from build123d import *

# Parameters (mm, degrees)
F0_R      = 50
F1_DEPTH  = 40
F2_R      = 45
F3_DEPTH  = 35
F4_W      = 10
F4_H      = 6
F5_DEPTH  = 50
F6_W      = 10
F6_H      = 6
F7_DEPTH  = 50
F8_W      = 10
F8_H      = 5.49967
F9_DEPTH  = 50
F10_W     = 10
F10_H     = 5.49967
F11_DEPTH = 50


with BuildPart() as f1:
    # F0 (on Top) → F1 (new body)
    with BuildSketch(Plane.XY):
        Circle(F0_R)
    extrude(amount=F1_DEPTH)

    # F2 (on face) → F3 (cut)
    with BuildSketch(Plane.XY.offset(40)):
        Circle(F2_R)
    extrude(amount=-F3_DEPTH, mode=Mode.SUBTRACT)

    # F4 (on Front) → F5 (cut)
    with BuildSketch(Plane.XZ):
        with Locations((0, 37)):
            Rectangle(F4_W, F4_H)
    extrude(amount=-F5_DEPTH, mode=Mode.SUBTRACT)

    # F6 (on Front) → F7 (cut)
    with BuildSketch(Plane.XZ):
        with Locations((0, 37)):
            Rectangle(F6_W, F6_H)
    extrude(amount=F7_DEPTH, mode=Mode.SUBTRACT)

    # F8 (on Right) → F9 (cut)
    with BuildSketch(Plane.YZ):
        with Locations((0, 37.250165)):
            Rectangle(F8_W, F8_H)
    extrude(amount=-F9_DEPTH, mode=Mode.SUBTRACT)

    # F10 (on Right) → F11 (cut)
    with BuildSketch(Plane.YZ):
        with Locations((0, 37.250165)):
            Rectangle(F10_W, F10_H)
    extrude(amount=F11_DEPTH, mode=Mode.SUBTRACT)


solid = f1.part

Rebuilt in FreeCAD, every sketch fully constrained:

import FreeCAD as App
import Part
import Sketcher
from FreeCAD import Vector


def add_polygon(sketch, points):
    """Adds a closed chain of lines whose ends are joined by coincident constraints."""
    first, n = sketch.GeometryCount, len(points)
    for a, b in zip(points, points[1:] + points[:1]):
        sketch.addGeometry(Part.LineSegment(App.Vector(*a, 0), App.Vector(*b, 0)), False)
    for i in range(n):
        sketch.addConstraint(Sketcher.Constraint("Coincident", first + i, 2, first + (i + 1) % n, 1))

doc = App.newDocument("Part")
body = doc.addObject("PartDesign::Body", "Body")

# Sketch on XY plane
sketch1 = doc.addObject("Sketcher::SketchObject", "Sketch")
body.addObject(sketch1)
sketch1.AttachmentSupport = (doc.XY_Plane, [""])
sketch1.MapMode = "FlatFace"
sketch1.addGeometry(Part.Circle(Vector(0, 0, 0), Vector(0, 0, 1), 50), False)
sketch1.addConstraint([
    Sketcher.Constraint("Coincident", 0, 3, -1, 1),
    Sketcher.Constraint("Diameter", 0, 100.0),
])
pad1 = doc.addObject("PartDesign::Pad", "Pad")
body.addObject(pad1)
pad1.Profile = sketch1
pad1.Length = 40

# Sketch on XY plane
sketch2 = doc.addObject("Sketcher::SketchObject", "Sketch001")
body.addObject(sketch2)
sketch2.AttachmentSupport = (doc.XY_Plane, [""])
sketch2.MapMode = "FlatFace"
sketch2.AttachmentOffset = App.Placement(Vector(0, 0, 40), App.Rotation())
sketch2.addGeometry(Part.Circle(Vector(0, 0, 0), Vector(0, 0, 1), 45), False)
sketch2.addConstraint([
    Sketcher.Constraint("Coincident", 0, 3, -1, 1),
    Sketcher.Constraint("Diameter", 0, 90.0),
])
pocket1 = doc.addObject("PartDesign::Pocket", "Pocket")
body.addObject(pocket1)
pocket1.Profile = sketch2
pocket1.Length = 35

# Sketch on XZ plane
sketch3 = doc.addObject("Sketcher::SketchObject", "Sketch002")
body.addObject(sketch3)
sketch3.AttachmentSupport = (doc.XZ_Plane, [""])
sketch3.MapMode = "FlatFace"
add_polygon(sketch3, [(-5, 40), (-5, 34), (5, 34), (5, 40)])  # lines 0-3
sketch3.addConstraint([
    Sketcher.Constraint("Vertical", 0),
    Sketcher.Constraint("Horizontal", 1),
    Sketcher.Constraint("Vertical", 2),
    Sketcher.Constraint("Horizontal", 3),
    Sketcher.Constraint("DistanceX", 1, 1, 1, 2, 10.0),
    Sketcher.Constraint("DistanceY", 0, 2, 0, 1, 6.0),
    Sketcher.Constraint("DistanceX", 0, 2, -1, 1, 5.0),
    Sketcher.Constraint("DistanceY", -1, 1, 0, 2, 34.0),
])
pocket2 = doc.addObject("PartDesign::Pocket", "Pocket001")
body.addObject(pocket2)
pocket2.Profile = sketch3
pocket2.Length = 50

# Sketch on XZ plane
sketch4 = doc.addObject("Sketcher::SketchObject", "Sketch003")
body.addObject(sketch4)
sketch4.AttachmentSupport = (doc.XZ_Plane, [""])
sketch4.MapMode = "FlatFace"
add_polygon(sketch4, [(-5, 40), (-5, 34), (5, 34), (5, 40)])  # lines 0-3
sketch4.addConstraint([
    Sketcher.Constraint("Vertical", 0),
    Sketcher.Constraint("Horizontal", 1),
    Sketcher.Constraint("Vertical", 2),
    Sketcher.Constraint("Horizontal", 3),
    Sketcher.Constraint("DistanceX", 1, 1, 1, 2, 10.0),
    Sketcher.Constraint("DistanceY", 0, 2, 0, 1, 6.0),
    Sketcher.Constraint("DistanceX", 0, 2, -1, 1, 5.0),
    Sketcher.Constraint("DistanceY", -1, 1, 0, 2, 34.0),
])
pocket3 = doc.addObject("PartDesign::Pocket", "Pocket002")
body.addObject(pocket3)
pocket3.Profile = sketch4
pocket3.Length = 50
pocket3.Reversed = True

# Sketch on YZ plane
sketch5 = doc.addObject("Sketcher::SketchObject", "Sketch004")
body.addObject(sketch5)
sketch5.AttachmentSupport = (doc.YZ_Plane, [""])
sketch5.MapMode = "FlatFace"
add_polygon(sketch5, [(-5, 40), (-5, 34.50033), (5, 34.50033), (5, 40)])  # lines 0-3
sketch5.addConstraint([
    Sketcher.Constraint("Vertical", 0),
    Sketcher.Constraint("Horizontal", 1),
    Sketcher.Constraint("Vertical", 2),
    Sketcher.Constraint("Horizontal", 3),
    Sketcher.Constraint("DistanceX", 1, 1, 1, 2, 10.0),
    Sketcher.Constraint("DistanceX", 0, 2, -1, 1, 5.0),
    Sketcher.Constraint("DistanceY", -1, 1, 2, 2, 40.0),
    Sketcher.Constraint("DistanceY", 0, 2, 0, 1, 5.49967),
])
pocket4 = doc.addObject("PartDesign::Pocket", "Pocket003")
body.addObject(pocket4)
pocket4.Profile = sketch5
pocket4.Length = 50

# Sketch on YZ plane
sketch6 = doc.addObject("Sketcher::SketchObject", "Sketch005")
body.addObject(sketch6)
sketch6.AttachmentSupport = (doc.YZ_Plane, [""])
sketch6.MapMode = "FlatFace"
add_polygon(sketch6, [(-5, 40), (-5, 34.50033), (5, 34.50033), (5, 40)])  # lines 0-3
sketch6.addConstraint([
    Sketcher.Constraint("Vertical", 0),
    Sketcher.Constraint("Horizontal", 1),
    Sketcher.Constraint("Vertical", 2),
    Sketcher.Constraint("Horizontal", 3),
    Sketcher.Constraint("DistanceX", 1, 1, 1, 2, 10.0),
    Sketcher.Constraint("DistanceX", 0, 2, -1, 1, 5.0),
    Sketcher.Constraint("DistanceY", -1, 1, 2, 2, 40.0),
    Sketcher.Constraint("DistanceY", 0, 2, 0, 1, 5.49967),
])
pocket5 = doc.addObject("PartDesign::Pocket", "Pocket004")
body.addObject(pocket5)
pocket5.Profile = sketch6
pocket5.Length = 50
pocket5.Reversed = True

doc.recompute()
